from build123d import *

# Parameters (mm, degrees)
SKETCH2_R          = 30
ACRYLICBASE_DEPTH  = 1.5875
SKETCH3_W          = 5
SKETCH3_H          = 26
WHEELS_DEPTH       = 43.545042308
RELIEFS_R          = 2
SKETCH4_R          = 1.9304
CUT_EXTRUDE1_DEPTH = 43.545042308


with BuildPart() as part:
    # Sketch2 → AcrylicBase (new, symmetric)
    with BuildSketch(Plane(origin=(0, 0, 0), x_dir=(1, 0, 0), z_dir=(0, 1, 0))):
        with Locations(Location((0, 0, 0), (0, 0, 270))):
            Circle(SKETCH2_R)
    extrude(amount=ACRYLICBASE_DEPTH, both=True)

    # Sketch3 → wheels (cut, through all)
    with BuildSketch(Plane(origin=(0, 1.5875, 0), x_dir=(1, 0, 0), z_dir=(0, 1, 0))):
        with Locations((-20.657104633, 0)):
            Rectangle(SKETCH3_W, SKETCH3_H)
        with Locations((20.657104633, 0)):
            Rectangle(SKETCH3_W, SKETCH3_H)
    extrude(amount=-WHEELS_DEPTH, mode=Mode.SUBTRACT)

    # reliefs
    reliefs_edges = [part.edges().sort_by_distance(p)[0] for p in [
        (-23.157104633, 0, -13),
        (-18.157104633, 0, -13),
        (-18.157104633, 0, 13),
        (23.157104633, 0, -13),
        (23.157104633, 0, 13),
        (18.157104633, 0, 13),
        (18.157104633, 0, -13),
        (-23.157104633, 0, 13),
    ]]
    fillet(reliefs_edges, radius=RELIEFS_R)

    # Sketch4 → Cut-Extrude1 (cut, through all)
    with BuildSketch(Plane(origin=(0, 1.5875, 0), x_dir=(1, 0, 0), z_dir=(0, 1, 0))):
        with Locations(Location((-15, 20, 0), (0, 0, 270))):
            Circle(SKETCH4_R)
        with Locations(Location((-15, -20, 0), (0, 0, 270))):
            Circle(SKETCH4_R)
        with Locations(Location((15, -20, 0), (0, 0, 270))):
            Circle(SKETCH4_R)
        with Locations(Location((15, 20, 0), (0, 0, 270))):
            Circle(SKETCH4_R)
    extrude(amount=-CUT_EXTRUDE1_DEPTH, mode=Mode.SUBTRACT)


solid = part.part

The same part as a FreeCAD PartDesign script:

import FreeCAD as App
import Part
import Sketcher
from FreeCAD import Vector
Q = App.Units.Quantity


def edges_at(feature, points):
    """Names of the edges that pass closest to the given points."""
    edges = feature.Shape.Edges
    near = lambda p: min(range(len(edges)), key=lambda i: edges[i].distToShape(Part.Vertex(*p))[0])
    return sorted({f"Edge{near(p) + 1}" for p in points})

doc = App.newDocument("Part")
body = doc.addObject("PartDesign::Body", "Body")

sketch1 = body.newObject("Sketcher::SketchObject", "Sketch")
sketch1.AttachmentSupport = (doc.getObject("XZ_Plane"), [""])
sketch1.MapMode = "FlatFace"
sketch1.addGeometry(Part.Circle(Vector(0, 0, 0), Vector(0, 0, 1), 30), False)
sketch1.addConstraint(Sketcher.Constraint("Coincident", 0, 3, -1, 1))
sketch1.addConstraint(Sketcher.Constraint("Diameter", 0, Q("60 mm")))
pad1 = body.newObject("PartDesign::Pad", "Pad")
pad1.Profile = sketch1
pad1.Length = 3.175
pad1.Midplane = True

sketch2 = body.newObject("Sketcher::SketchObject", "Sketch001")
sketch2.AttachmentSupport = (doc.getObject("XZ_Plane"), [""])
sketch2.MapMode = "FlatFace"
sketch2.AttachmentOffset = App.Placement(Vector(0, 0, -1.5875), App.Rotation())
sketch2.addGeometry(Part.LineSegment(Vector(-23, -13, 0), Vector(-23, 13, 0)), False)
sketch2.addGeometry(Part.LineSegment(Vector(-23, 13, 0), Vector(-18, 13, 0)), False)
sketch2.addGeometry(Part.LineSegment(Vector(-18, 13, 0), Vector(-18, -13, 0)), False)
sketch2.addGeometry(Part.LineSegment(Vector(-18, -13, 0), Vector(-23, -13, 0)), False)
sketch2.addGeometry(Part.LineSegment(Vector(18, -13, 0), Vector(18, 13, 0)), False)
sketch2.addGeometry(Part.LineSegment(Vector(18, 13, 0), Vector(23, 13, 0)), False)
sketch2.addGeometry(Part.LineSegment(Vector(23, 13, 0), Vector(23, -13, 0)), False)
sketch2.addGeometry(Part.LineSegment(Vector(23, -13, 0), Vector(18, -13, 0)), False)
sketch2.addConstraint(Sketcher.Constraint("Coincident", 0, 2, 1, 1))
sketch2.addConstraint(Sketcher.Constraint("Coincident", 1, 2, 2, 1))
sketch2.addConstraint(Sketcher.Constraint("Coincident", 2, 2, 3, 1))
sketch2.addConstraint(Sketcher.Constraint("Coincident", 3, 2, 0, 1))
sketch2.addConstraint(Sketcher.Constraint("Coincident", 4, 2, 5, 1))
sketch2.addConstraint(Sketcher.Constraint("Coincident", 5, 2, 6, 1))
sketch2.addConstraint(Sketcher.Constraint("Coincident", 6, 2, 7, 1))
sketch2.addConstraint(Sketcher.Constraint("Coincident", 7, 2, 4, 1))
sketch2.addConstraint(Sketcher.Constraint("Vertical", 0))
sketch2.addConstraint(Sketcher.Constraint("Horizontal", 1))
sketch2.addConstraint(Sketcher.Constraint("Vertical", 2))
sketch2.addConstraint(Sketcher.Constraint("Horizontal", 3))
sketch2.addConstraint(Sketcher.Constraint("Vertical", 4))
sketch2.addConstraint(Sketcher.Constraint("Horizontal", 5))
sketch2.addConstraint(Sketcher.Constraint("Vertical", 6))
sketch2.addConstraint(Sketcher.Constraint("Horizontal", 7))
sketch2.addConstraint(Sketcher.Constraint("Symmetric", 2, 2, 4, 2, -1, 1))
sketch2.addConstraint(Sketcher.Constraint("Symmetric", 0, 2, 6, 2, -1, 1))
sketch2.addConstraint(Sketcher.Constraint("Horizontal", 1, 2, 4, 2))
sketch2.addConstraint(Sketcher.Constraint("DistanceX", 1, 1, 1, 2, Q("5 mm")))
sketch2.addConstraint(Sketcher.Constraint("DistanceY", 0, 1, 0, 2, Q("26 mm")))
sketch2.addConstraint(Sketcher.Constraint("DistanceX", 1, 2, 4, 2, Q("36.314209 mm")))
pocket1 = body.newObject("PartDesign::Pocket", "Pocket")
pocket1.Profile = sketch2
pocket1.Type = "ThroughAll"
pocket1.Reversed = True
doc.recompute()

fillet = body.newObject("PartDesign::Fillet", "Fillet")
fillet.Base = (pocket1, edges_at(pocket1, [
    (-23.157, 0, -13),
    (-18.157, 0, -13),
    (-18.157, 0, 13),
    (23.157, 0, -13),
    (23.157, 0, 13),
    (18.157, 0, 13),
    (18.157, 0, -13),
    (-23.157, 0, 13),
]))
fillet.Radius = 2

sketch3 = body.newObject("Sketcher::SketchObject", "Sketch002")
sketch3.AttachmentSupport = (doc.getObject("XZ_Plane"), [""])
sketch3.MapMode = "FlatFace"
sketch3.AttachmentOffset = App.Placement(Vector(0, 0, -1.5875), App.Rotation())
sketch3.addGeometry(Part.Circle(Vector(-15, -20, 0), Vector(0, 0, 1), 1.9), False)
sketch3.addGeometry(Part.Circle(Vector(-15, 20, 0), Vector(0, 0, 1), 1.9), False)
sketch3.addGeometry(Part.Circle(Vector(15, 20, 0), Vector(0, 0, 1), 1.9), False)
sketch3.addGeometry(Part.Circle(Vector(15, -20, 0), Vector(0, 0, 1), 1.9), False)
sketch3.addConstraint(Sketcher.Constraint("Equal", 0, 1))
sketch3.addConstraint(Sketcher.Constraint("Equal", 1, 2))
sketch3.addConstraint(Sketcher.Constraint("Equal", 2, 3))
sketch3.addConstraint(Sketcher.Constraint("Symmetric", 0, 3, 2, 3, -1, 1))
sketch3.addConstraint(Sketcher.Constraint("Symmetric", 1, 3, 3, 3, -1, 1))
sketch3.addConstraint(Sketcher.Constraint("Symmetric", 1, 3, 2, 3, -2))
sketch3.addConstraint(Sketcher.Constraint("DistanceX", 0, 3, -1, 1, Q("15 mm")))
sketch3.addConstraint(Sketcher.Constraint("DistanceY", 0, 3, -1, 1, Q("20 mm")))
sketch3.addConstraint(Sketcher.Constraint("Diameter", 0, Q("3.8608 mm")))
pocket2 = body.newObject("PartDesign::Pocket", "Pocket001")
pocket2.Profile = sketch3
pocket2.Type = "ThroughAll"
pocket2.Reversed = True

doc.recompute()
